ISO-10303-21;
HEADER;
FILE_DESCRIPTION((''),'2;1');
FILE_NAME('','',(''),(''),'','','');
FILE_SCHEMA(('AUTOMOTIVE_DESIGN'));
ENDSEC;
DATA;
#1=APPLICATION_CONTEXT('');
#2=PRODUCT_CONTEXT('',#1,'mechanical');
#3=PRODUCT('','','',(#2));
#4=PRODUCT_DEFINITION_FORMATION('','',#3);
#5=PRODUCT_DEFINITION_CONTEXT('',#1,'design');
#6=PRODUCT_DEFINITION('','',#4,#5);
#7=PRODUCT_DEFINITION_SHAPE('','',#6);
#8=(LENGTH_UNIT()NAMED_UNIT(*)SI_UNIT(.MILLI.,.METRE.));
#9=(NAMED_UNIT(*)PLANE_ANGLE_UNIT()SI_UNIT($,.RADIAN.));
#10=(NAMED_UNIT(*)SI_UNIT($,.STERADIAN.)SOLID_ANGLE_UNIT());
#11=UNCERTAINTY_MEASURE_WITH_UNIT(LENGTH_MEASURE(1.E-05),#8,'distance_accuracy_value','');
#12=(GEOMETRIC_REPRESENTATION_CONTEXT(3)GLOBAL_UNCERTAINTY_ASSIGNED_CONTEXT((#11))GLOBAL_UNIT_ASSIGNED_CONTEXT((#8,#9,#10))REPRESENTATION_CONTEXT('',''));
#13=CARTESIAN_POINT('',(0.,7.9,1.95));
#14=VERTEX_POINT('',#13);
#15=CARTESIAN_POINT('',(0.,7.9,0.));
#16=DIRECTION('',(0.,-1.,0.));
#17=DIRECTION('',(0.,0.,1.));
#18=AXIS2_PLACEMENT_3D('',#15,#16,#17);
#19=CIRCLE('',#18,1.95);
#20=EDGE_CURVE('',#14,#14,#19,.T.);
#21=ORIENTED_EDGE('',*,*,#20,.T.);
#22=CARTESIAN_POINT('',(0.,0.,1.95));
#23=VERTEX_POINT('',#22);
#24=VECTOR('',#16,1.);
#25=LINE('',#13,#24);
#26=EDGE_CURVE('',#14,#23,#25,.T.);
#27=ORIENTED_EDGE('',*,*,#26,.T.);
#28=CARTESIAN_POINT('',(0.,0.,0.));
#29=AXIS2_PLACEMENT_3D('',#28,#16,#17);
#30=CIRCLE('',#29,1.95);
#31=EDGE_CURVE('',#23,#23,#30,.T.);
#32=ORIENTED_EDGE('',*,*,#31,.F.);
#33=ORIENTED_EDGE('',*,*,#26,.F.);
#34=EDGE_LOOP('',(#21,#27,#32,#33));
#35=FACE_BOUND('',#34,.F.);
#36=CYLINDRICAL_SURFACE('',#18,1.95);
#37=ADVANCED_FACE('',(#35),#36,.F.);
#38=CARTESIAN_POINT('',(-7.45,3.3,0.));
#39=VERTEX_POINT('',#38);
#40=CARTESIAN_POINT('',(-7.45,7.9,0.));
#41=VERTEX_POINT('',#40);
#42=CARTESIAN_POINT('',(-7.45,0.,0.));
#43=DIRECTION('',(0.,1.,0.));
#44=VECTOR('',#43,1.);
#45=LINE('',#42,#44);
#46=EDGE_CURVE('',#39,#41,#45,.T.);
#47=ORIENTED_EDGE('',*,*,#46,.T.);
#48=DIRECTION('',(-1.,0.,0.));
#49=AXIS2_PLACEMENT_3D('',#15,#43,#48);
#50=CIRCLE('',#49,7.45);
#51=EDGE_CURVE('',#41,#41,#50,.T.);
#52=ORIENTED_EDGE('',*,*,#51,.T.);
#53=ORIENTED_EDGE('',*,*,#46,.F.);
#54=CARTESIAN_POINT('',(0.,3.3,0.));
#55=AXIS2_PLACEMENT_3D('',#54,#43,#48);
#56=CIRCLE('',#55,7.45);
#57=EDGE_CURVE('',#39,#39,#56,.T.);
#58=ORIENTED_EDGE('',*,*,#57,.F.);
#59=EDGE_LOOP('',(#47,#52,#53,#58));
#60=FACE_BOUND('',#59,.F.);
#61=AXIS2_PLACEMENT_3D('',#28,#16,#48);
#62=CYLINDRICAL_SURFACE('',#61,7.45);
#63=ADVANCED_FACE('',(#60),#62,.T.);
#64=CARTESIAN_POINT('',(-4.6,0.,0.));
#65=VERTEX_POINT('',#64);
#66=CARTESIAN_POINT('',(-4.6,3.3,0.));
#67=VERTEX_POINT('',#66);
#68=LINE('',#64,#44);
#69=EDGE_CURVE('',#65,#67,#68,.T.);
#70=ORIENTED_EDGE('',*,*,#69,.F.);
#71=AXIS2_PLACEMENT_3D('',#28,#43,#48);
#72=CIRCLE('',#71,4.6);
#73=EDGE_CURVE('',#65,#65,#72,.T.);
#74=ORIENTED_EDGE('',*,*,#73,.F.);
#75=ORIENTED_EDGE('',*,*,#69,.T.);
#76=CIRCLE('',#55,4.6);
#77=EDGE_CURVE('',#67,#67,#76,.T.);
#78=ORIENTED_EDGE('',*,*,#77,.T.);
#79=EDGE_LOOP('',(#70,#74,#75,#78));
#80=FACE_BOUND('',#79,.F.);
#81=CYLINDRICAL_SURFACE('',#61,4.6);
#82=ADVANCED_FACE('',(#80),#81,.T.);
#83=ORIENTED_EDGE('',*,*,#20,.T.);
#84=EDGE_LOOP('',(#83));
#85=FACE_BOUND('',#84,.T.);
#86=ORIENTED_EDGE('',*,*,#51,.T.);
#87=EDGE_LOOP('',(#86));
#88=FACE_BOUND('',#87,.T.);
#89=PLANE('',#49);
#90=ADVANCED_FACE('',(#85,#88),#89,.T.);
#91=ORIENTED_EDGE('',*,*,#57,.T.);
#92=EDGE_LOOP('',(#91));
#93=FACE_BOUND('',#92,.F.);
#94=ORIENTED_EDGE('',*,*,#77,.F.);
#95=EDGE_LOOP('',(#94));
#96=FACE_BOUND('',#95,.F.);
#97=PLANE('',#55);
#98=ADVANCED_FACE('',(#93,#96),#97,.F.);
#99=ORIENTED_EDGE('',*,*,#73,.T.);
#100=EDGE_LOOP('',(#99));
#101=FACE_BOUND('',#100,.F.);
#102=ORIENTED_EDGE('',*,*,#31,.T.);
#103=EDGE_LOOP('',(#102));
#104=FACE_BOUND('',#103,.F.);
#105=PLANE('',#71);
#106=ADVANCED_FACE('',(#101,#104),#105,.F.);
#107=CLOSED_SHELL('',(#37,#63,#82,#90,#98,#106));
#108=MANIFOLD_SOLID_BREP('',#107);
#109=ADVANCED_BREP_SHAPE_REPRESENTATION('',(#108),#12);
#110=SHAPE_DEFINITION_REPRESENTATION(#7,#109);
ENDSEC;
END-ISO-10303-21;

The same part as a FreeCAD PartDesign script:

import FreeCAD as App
import Part
import Sketcher

doc = App.newDocument("Part")
params = doc.addObject("Spreadsheet::Sheet", "Params")
for row, (alias, value) in enumerate([
    ("sketch1_diameter", "14.9 mm"),
    ("pad1_length", "7.9 mm"),
    ("sketch2_diameter", "9.2 mm"),
    ("sketch2_diameter2", "14.9 mm"),
    ("pocket1_length", "3.3 mm"),
    ("sketch3_diameter", "3.9 mm"),
    ("hole_diameter", "3.9 mm"),
], start=1):
    params.set(f"A{row}", alias)
    params.set(f"B{row}", "=" + value)
    params.setAlias(f"B{row}", alias)

body = doc.addObject("PartDesign::Body", "Body")

sketch1 = body.newObject("Sketcher::SketchObject", "Sketch")
sketch1.AttachmentSupport = (doc.getObject("XZ_Plane"), [""])
sketch1.MapMode = "FlatFace"
sketch1.addGeometry(Part.Circle(App.Vector(0, 0, 0), App.Vector(0, 0, 1), 7), False)
sketch1.addConstraint([
    Sketcher.Constraint("Coincident", 0, 3, -1, 1),
    Sketcher.Constraint("Diameter", 0, 14.9),
])
sketch1.setExpression("Constraints[1]", "Params.sketch1_diameter")
pad1 = body.newObject("PartDesign::Pad", "Pad")
pad1.Profile = sketch1
pad1.setExpression("Length", "Params.pad1_length")
pad1.Reversed = True

sketch2 = body.newObject("Sketcher::SketchObject", "Sketch001")
sketch2.AttachmentSupport = (doc.getObject("XZ_Plane"), [""])
sketch2.MapMode = "FlatFace"
sketch2.addGeometry([
    Part.Circle(App.Vector(0, 0, 0), App.Vector(0, 0, 1), 7.5),
    Part.Circle(App.Vector(0, 0, 0), App.Vector(0, 0, 1), 4.6),
], False)
sketch2.addConstraint([
    Sketcher.Constraint("Coincident", 0, 3, -1, 1),
    Sketcher.Constraint("Coincident", 1, 3, -1, 1),
    Sketcher.Constraint("Diameter", 1, 9.2),
    Sketcher.Constraint("Diameter", 0, 14.9),
])
sketch2.setExpression("Constraints[2]", "Params.sketch2_diameter")
sketch2.setExpression("Constraints[3]", "Params.sketch2_diameter2")
pocket1 = body.newObject("PartDesign::Pocket", "Pocket")
pocket1.Profile = sketch2
pocket1.setExpression("Length", "Params.pocket1_length")

sketch3 = body.newObject("Sketcher::SketchObject", "Sketch002")
sketch3.AttachmentSupport = (doc.getObject("XZ_Plane"), [""])
sketch3.MapMode = "FlatFace"
sketch3.AttachmentOffset = App.Placement(App.Vector(0, 0, -7.9), App.Rotation())
sketch3.addGeometry(Part.Circle(App.Vector(0, 0, 0), App.Vector(0, 0, 1), 1.9), False)
sketch3.addConstraint([
    Sketcher.Constraint("Coincident", 0, 3, -1, 1),
    Sketcher.Constraint("Diameter", 0, 3.9),
])
sketch3.setExpression("Constraints[1]", "Params.sketch3_diameter")
doc.recompute()
hole = body.newObject("PartDesign::Hole", "Hole")
hole.Profile = sketch3
hole.ThreadType = "None"
hole.setExpression("Diameter", "Params.hole_diameter")
hole.DepthType = "ThroughAll"
hole.Reversed = True

doc.recompute()
